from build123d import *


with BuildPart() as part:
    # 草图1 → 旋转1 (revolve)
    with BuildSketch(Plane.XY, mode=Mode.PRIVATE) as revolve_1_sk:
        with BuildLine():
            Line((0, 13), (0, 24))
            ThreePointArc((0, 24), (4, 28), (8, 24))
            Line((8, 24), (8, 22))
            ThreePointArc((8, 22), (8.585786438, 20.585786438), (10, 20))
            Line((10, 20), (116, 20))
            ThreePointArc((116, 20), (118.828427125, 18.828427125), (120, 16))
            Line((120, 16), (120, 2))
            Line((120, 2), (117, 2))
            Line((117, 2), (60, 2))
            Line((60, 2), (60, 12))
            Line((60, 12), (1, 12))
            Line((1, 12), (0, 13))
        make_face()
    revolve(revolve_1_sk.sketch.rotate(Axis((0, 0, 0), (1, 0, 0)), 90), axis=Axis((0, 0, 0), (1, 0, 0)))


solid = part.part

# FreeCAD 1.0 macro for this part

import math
import FreeCAD as App
import Part
import Sketcher

V = App.Vector

doc = App.newDocument("Part")
body = doc.addObject("PartDesign::Body", "Body")

# Sketch on XY plane
sketch1 = doc.addObject("Sketcher::SketchObject", "Sketch")
body.addObject(sketch1)
sketch1.AttachmentSupport = (doc.XY_Plane, [""])
sketch1.MapMode = "FlatFace"
sketch1.addGeometry([
    Part.LineSegment(V(0, 24, 0), V(0, 13, 0)),  # 0
    Part.LineSegment(V(0, 13, 0), V(1, 12, 0)),  # 1
    Part.LineSegment(V(1, 12, 0), V(60, 12, 0)),  # 2
    Part.LineSegment(V(60, 12, 0), V(60, 2, 0)),  # 3
    Part.LineSegment(V(60, 2, 0), V(120, 2, 0)),  # 4
    Part.LineSegment(V(120, 2, 0), V(120, 16, 0)),  # 5
    Part.ArcOfCircle(Part.Circle(V(116, 16, 0), V(0, 0, 1), 4), math.radians(0), math.radians(90)),  # 6
    Part.LineSegment(V(116, 20, 0), V(10, 20, 0)),  # 7
    Part.ArcOfCircle(Part.Circle(V(10, 22, 0), V(0, 0, 1), 2), math.radians(-180), math.radians(-90)),  # 8
    Part.LineSegment(V(8, 22, 0), V(8, 24, 0)),  # 9
    Part.ArcOfCircle(Part.Circle(V(4, 24, 0), V(0, 0, 1), 4), math.radians(0), math.radians(180)),  # 10
], False)
sketch1.addConstraint([
    Sketcher.Constraint("Coincident", 0, 2, 1, 1),
    Sketcher.Constraint("Coincident", 1, 2, 2, 1),
    Sketcher.Constraint("Coincident", 2, 2, 3, 1),
    Sketcher.Constraint("Coincident", 3, 2, 4, 1),
    Sketcher.Constraint("Coincident", 4, 2, 5, 1),
    Sketcher.Constraint("Tangent", 5, 2, 6, 1),
    Sketcher.Constraint("Tangent", 6, 2, 7, 1),
    Sketcher.Constraint("Tangent", 7, 2, 8, 2),
    Sketcher.Constraint("Tangent", 8, 1, 9, 1),
    Sketcher.Constraint("Tangent", 9, 2, 10, 1),
    Sketcher.Constraint("Tangent", 10, 2, 0, 1),
    Sketcher.Constraint("Vertical", 0),
    Sketcher.Constraint("Horizontal", 2),
    Sketcher.Constraint("Vertical", 3),
    Sketcher.Constraint("Horizontal", 4),
    Sketcher.Constraint("Vertical", 5),
    Sketcher.Constraint("Horizontal", 7),
    Sketcher.Constraint("Vertical", 9),
    Sketcher.Constraint("Equal", 6, 10),
    Sketcher.Constraint("PointOnObject", 0, 2, -2),
    Sketcher.Constraint("Radius", 6, 4.0),
    Sketcher.Constraint("Radius", 8, 2.0),
    Sketcher.Constraint("DistanceX", 2, 1, 2, 2, 59.0),
    Sketcher.Constraint("DistanceX", 4, 1, 4, 2, 60.0),
    Sketcher.Constraint("DistanceX", 7, 2, 7, 1, 106.0),
    Sketcher.Constraint("DistanceY", 0, 2, 0, 1, 11.0),
    Sketcher.Constraint("DistanceY", 3, 2, 3, 1, 10.0),
    Sketcher.Constraint("DistanceY", 5, 1, 5, 2, 14.0),
    Sketcher.Constraint("DistanceY", 9, 1, 9, 2, 2.0),
    Sketcher.Constraint("DistanceY", -1, 1, 6, 3, 16.0),
])
revolution = doc.addObject("PartDesign::Revolution", "Revolution")
body.addObject(revolution)
revolution.Profile = sketch1
revolution.ReferenceAxis = (sketch1, ["H_Axis"])
revolution.Angle = 360

doc.recompute()
